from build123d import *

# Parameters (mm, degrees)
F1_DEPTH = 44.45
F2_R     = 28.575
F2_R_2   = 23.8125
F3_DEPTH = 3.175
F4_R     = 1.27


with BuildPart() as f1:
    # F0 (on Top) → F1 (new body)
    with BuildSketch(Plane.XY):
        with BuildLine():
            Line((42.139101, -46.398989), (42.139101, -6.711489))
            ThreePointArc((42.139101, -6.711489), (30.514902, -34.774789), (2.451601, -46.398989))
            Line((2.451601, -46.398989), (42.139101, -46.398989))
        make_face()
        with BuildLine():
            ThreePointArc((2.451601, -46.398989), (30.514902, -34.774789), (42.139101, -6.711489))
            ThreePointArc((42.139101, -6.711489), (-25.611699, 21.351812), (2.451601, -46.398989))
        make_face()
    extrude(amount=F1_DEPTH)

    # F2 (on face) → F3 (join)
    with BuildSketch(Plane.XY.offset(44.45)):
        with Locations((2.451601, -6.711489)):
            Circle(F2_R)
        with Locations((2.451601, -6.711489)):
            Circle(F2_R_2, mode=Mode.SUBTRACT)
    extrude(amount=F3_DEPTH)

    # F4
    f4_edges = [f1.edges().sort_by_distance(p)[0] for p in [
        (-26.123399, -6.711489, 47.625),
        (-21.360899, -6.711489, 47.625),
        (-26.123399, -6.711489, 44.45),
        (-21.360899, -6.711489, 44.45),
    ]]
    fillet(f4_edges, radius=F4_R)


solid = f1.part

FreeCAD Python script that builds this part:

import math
import FreeCAD as App
import Part
import Sketcher

V = App.Vector
Q = App.Units.Quantity


def edges_at(feature, points):
    """Names of the edges that pass closest to the given points."""
    edges = feature.Shape.Edges
    near = lambda p: min(range(len(edges)), key=lambda i: edges[i].distToShape(Part.Vertex(*p))[0])
    return sorted({f"Edge{near(p) + 1}" for p in points})

doc = App.newDocument("Part")
params = doc.addObject("Spreadsheet::Sheet", "Params")
for row, (alias, value) in enumerate([
    ("sketch1_radius", "1.5625 in"),
    ("pad1_length", "1.75 in"),
    ("sketch2_diameter", "2.25 in"),
    ("sketch2_diameter2", "1.875 in"),
    ("pad2_length", "0.125 in"),
    ("fillet_radius", "0.05 in"),
], start=1):
    params.set(f"A{row}", alias)
    params.set(f"B{row}", "=" + value)
    params.setAlias(f"B{row}", alias)

body = doc.addObject("PartDesign::Body", "Body")

# Sketch on XY plane
sketch1 = body.newObject("Sketcher::SketchObject", "Sketch")
sketch1.AttachmentSupport = (doc.getObject("XY_Plane"), [""])
sketch1.MapMode = "FlatFace"
sketch1.addGeometry(Part.LineSegment(V(42, -46, 0), V(42, -7, 0)), False)
sketch1.addGeometry(Part.ArcOfCircle(Part.Circle(V(2, -7, 0), V(0, 0, 1), 40), math.radians(0), math.radians(270)), False)
sketch1.addGeometry(Part.LineSegment(V(2, -46, 0), V(42, -46, 0)), False)
sketch1.addConstraint(Sketcher.Constraint("Tangent", 0, 2, 1, 1))
sketch1.addConstraint(Sketcher.Constraint("Tangent", 1, 2, 2, 1))
sketch1.addConstraint(Sketcher.Constraint("Coincident", 2, 2, 0, 1))
sketch1.addConstraint(Sketcher.Constraint("Vertical", 0))
sketch1.addConstraint(Sketcher.Constraint("Horizontal", 2))
sketch1.addConstraint(Sketcher.Constraint("Radius", 1, Q("1.5625 in")))
sketch1.addConstraint(Sketcher.Constraint("DistanceX", -1, 1, 1, 3, 2.451601))
sketch1.addConstraint(Sketcher.Constraint("DistanceY", 1, 3, -1, 1, 6.711489))
sketch1.setExpression("Constraints[5]", "Params.sketch1_radius")
pad1 = body.newObject("PartDesign::Pad", "Pad")
pad1.Profile = sketch1
pad1.setExpression("Length", "Params.pad1_length")

# Sketch on XY plane
sketch2 = body.newObject("Sketcher::SketchObject", "Sketch001")
sketch2.AttachmentSupport = (doc.getObject("XY_Plane"), [""])
sketch2.MapMode = "FlatFace"
sketch2.AttachmentOffset = App.Placement(V(0, 0, 1.75 * 25.4), App.Rotation())
sketch2.addGeometry(Part.Circle(V(2, -7, 0), V(0, 0, 1), 29), False)
sketch2.addGeometry(Part.Circle(V(2, -7, 0), V(0, 0, 1), 24), False)
sketch2.addConstraint(Sketcher.Constraint("Coincident", 1, 3, 0, 3))
sketch2.addConstraint(Sketcher.Constraint("Diameter", 0, Q("2.25 in")))
sketch2.addConstraint(Sketcher.Constraint("Diameter", 1, Q("1.875 in")))
sketch2.addConstraint(Sketcher.Constraint("DistanceX", -1, 1, 0, 3, 2.451601))
sketch2.addConstraint(Sketcher.Constraint("DistanceY", 0, 3, -1, 1, 6.711489))
sketch2.setExpression("Constraints[1]", "Params.sketch2_diameter")
sketch2.setExpression("Constraints[2]", "Params.sketch2_diameter2")
pad2 = body.newObject("PartDesign::Pad", "Pad001")
pad2.Profile = sketch2
pad2.setExpression("Length", "Params.pad2_length")
doc.recompute()

fillet = body.newObject("PartDesign::Fillet", "Fillet")
fillet.Base = (pad2, edges_at(pad2, [
    (-26.123, -6.711, 47.625),
    (-21.361, -6.711, 47.625),
    (-26.123, -6.711, 44.45),
    (-21.361, -6.711, 44.45),
]))
fillet.setExpression("Radius", "Params.fillet_radius")

doc.recompute()
